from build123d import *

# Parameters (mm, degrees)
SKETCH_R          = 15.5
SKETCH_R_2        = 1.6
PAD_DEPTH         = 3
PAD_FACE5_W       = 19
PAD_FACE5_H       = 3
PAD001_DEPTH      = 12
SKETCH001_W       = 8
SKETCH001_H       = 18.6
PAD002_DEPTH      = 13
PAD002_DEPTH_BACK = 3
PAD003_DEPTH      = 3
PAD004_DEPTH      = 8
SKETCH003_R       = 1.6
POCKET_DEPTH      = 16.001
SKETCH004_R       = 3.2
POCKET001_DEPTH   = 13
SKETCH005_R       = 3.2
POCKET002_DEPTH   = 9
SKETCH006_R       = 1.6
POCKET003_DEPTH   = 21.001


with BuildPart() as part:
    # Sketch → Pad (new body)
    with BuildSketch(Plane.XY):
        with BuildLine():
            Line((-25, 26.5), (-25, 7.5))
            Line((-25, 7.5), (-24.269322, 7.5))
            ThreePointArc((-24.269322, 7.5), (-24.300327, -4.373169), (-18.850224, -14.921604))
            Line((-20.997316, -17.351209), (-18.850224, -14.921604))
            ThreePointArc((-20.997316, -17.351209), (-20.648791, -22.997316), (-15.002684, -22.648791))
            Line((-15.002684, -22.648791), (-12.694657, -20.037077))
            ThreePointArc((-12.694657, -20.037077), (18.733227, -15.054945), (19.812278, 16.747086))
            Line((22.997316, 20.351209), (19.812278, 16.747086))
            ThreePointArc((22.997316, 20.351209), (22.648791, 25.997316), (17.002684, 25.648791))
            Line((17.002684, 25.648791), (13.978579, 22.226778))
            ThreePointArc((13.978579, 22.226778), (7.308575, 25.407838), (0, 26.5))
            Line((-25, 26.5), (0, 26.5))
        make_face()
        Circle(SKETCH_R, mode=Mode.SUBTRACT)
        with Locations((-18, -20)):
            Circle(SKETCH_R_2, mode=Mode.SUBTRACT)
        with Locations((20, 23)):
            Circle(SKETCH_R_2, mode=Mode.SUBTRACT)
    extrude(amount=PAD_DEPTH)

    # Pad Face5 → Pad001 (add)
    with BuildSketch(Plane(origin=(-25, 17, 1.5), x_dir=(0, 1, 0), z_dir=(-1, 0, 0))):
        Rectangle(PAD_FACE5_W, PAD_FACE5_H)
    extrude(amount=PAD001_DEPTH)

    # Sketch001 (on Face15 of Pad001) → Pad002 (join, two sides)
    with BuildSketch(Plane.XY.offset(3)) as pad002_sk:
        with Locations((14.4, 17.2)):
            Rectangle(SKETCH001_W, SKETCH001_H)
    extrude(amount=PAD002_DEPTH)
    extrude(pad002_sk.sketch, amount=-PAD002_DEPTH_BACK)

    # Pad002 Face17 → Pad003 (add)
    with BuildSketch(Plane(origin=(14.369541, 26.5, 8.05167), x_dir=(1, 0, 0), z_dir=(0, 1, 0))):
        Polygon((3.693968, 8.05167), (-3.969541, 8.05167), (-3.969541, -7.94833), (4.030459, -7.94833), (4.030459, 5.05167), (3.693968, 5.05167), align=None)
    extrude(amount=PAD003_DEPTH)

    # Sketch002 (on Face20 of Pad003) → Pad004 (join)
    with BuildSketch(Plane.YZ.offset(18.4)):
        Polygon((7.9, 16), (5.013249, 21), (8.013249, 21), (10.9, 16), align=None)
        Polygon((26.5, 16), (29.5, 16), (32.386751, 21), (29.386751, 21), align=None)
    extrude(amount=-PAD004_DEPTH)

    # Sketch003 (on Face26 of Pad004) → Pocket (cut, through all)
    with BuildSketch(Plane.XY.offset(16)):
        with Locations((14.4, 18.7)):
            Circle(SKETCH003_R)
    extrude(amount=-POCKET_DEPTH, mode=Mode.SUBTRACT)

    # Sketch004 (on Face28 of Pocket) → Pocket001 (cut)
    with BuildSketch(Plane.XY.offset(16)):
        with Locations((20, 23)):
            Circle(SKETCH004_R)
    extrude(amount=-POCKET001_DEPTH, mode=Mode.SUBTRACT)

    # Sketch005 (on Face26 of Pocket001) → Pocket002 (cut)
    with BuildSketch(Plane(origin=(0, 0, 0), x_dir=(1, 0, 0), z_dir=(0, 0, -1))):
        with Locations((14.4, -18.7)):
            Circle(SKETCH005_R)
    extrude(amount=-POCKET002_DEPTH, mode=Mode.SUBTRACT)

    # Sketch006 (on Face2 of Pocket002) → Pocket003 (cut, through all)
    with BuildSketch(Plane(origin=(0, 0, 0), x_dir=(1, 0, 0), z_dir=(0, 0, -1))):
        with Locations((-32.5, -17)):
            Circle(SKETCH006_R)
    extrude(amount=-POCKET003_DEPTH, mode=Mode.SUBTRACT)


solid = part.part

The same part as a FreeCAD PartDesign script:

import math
import FreeCAD as App
import Part
import Sketcher
Q = App.Units.Quantity


def add_polygon(sketch, points):
    """Adds a closed chain of lines whose ends are joined by coincident constraints."""
    first, n = sketch.GeometryCount, len(points)
    for a, b in zip(points, points[1:] + points[:1]):
        sketch.addGeometry(Part.LineSegment(App.Vector(*a, 0), App.Vector(*b, 0)), False)
    for i in range(n):
        sketch.addConstraint(Sketcher.Constraint("Coincident", first + i, 2, first + (i + 1) % n, 1))

doc = App.newDocument("Part")
body = doc.addObject("PartDesign::Body", "Body")

# Sketch on XY plane
sketch1 = doc.addObject("Sketcher::SketchObject", "Sketch")
body.addObject(sketch1)
sketch1.AttachmentSupport = (doc.XY_Plane, [""])
sketch1.MapMode = "FlatFace"
sketch1.addGeometry([
    Part.LineSegment(App.Vector(-25, 26.5, 0), App.Vector(-25, 7.5, 0)),  # 0
    Part.LineSegment(App.Vector(-25, 7.5, 0), App.Vector(-24.3, 7.5, 0)),  # 1
    Part.ArcOfCircle(Part.Circle(App.Vector(0, 1.5, 0), App.Vector(0, 0, 1), 25), math.radians(166), math.radians(221)),  # 2
    Part.LineSegment(App.Vector(-18.9, -14.9, 0), App.Vector(-21, -17.4, 0)),  # 3
    Part.ArcOfCircle(Part.Circle(App.Vector(-18, -20, 0), App.Vector(0, 0, 1), 4), math.radians(139), math.radians(319)),  # 4
    Part.LineSegment(App.Vector(-15, -22.6, 0), App.Vector(-12.7, -20, 0)),  # 5
    Part.ArcOfCircle(Part.Circle(App.Vector(0, 1.5, 0), App.Vector(0, 0, 1), 25), math.radians(-121), math.radians(38)),  # 6
    Part.LineSegment(App.Vector(19.8, 16.7, 0), App.Vector(23, 20.4, 0)),  # 7
    Part.ArcOfCircle(Part.Circle(App.Vector(20, 23, 0), App.Vector(0, 0, 1), 4), math.radians(-41), math.radians(139)),  # 8
    Part.LineSegment(App.Vector(17, 25.6, 0), App.Vector(14, 22.2, 0)),  # 9
    Part.ArcOfCircle(Part.Circle(App.Vector(0, 1.5, 0), App.Vector(0, 0, 1), 25), math.radians(56), math.radians(90)),  # 10
    Part.LineSegment(App.Vector(0, 26.5, 0), App.Vector(-25, 26.5, 0)),  # 11
    Part.Circle(App.Vector(-18, -20, 0), App.Vector(0, 0, 1), 1.6),  # 12
    Part.Circle(App.Vector(0, 0, 0), App.Vector(0, 0, 1), 15.5),  # 13
    Part.Circle(App.Vector(20, 23, 0), App.Vector(0, 0, 1), 1.6),  # 14
], False)
sketch1.addConstraint([
    Sketcher.Constraint("Coincident", 0, 2, 1, 1),
    Sketcher.Constraint("Coincident", 1, 2, 2, 1),
    Sketcher.Constraint("Coincident", 2, 2, 3, 1),
    Sketcher.Constraint("Tangent", 3, 2, 4, 1),
    Sketcher.Constraint("Tangent", 4, 2, 5, 1),
    Sketcher.Constraint("Coincident", 5, 2, 6, 1),
    Sketcher.Constraint("Coincident", 6, 2, 7, 1),
    Sketcher.Constraint("Tangent", 7, 2, 8, 1),
    Sketcher.Constraint("Tangent", 8, 2, 9, 1),
    Sketcher.Constraint("Coincident", 9, 2, 10, 1),
    Sketcher.Constraint("Tangent", 10, 2, 11, 1),
    Sketcher.Constraint("Coincident", 11, 2, 0, 1),
    Sketcher.Constraint("Vertical", 0),
    Sketcher.Constraint("Horizontal", 1),
    Sketcher.Constraint("Horizontal", 11),
    Sketcher.Constraint("Coincident", 13, 3, -1, 1),
    Sketcher.Constraint("Coincident", 6, 3, 2, 3),
    Sketcher.Constraint("Coincident", 10, 3, 2, 3),
    Sketcher.Constraint("Coincident", 12, 3, 4, 3),
    Sketcher.Constraint("Coincident", 14, 3, 8, 3),
    Sketcher.Constraint("Equal", 2, 6),
    Sketcher.Constraint("Equal", 4, 8),
    Sketcher.Constraint("Equal", 12, 14),
    Sketcher.Constraint("PointOnObject", 2, 3, -2),
    Sketcher.Constraint("Parallel", 3, 5),
    Sketcher.Constraint("Parallel", 5, 7),
    Sketcher.Constraint("Parallel", 7, 9),
    Sketcher.Constraint("Diameter", 13, 31.0),
    Sketcher.Constraint("Radius", 2, 25.0),
    Sketcher.Constraint("Radius", 4, 4.0),
    Sketcher.Constraint("Diameter", 12, 3.2),
    Sketcher.Constraint("DistanceX", 11, 2, 11, 1, 25.0),
    Sketcher.Constraint("DistanceY", 0, 2, 0, 1, 19.0),
    Sketcher.Constraint("DistanceX", 4, 3, -1, 1, 18.0),
    Sketcher.Constraint("DistanceY", 4, 3, -1, 1, 20.0),
    Sketcher.Constraint("DistanceX", -1, 1, 8, 3, 20.0),
    Sketcher.Constraint("DistanceY", -1, 1, 8, 3, 23.0),
    Sketcher.Constraint("DistanceY", 6, 3, 0, 2, 6.0),
    Sketcher.Constraint("DistanceY", -1, 1, 2, 3, 1.499999),
    Sketcher.Constraint("Distance", 7, 4.809799),
])
pad1 = doc.addObject("PartDesign::Pad", "Pad")
body.addObject(pad1)
pad1.Profile = sketch1
pad1.Length = 3

# Sketch on YZ plane
sketch2 = doc.addObject("Sketcher::SketchObject", "Sketch001")
body.addObject(sketch2)
sketch2.AttachmentSupport = (doc.YZ_Plane, [""])
sketch2.MapMode = "FlatFace"
sketch2.AttachmentOffset = App.Placement(App.Vector(0, 0, -25), App.Rotation())
add_polygon(sketch2, [(7.5, 0), (7.5, 3), (26.5, 3), (26.5, 0)])  # lines 0-3
sketch2.addConstraint([
    Sketcher.Constraint("Vertical", 0),
    Sketcher.Constraint("Horizontal", 1),
    Sketcher.Constraint("Vertical", 2),
    Sketcher.Constraint("Horizontal", 3),
    Sketcher.Constraint("PointOnObject", 2, 2, -1),
    Sketcher.Constraint("DistanceX", 1, 1, 1, 2, 19.0),
    Sketcher.Constraint("DistanceY", 0, 1, 0, 2, 3.0),
    Sketcher.Constraint("DistanceX", -1, 1, 0, 2, 7.5),
])
pad2 = doc.addObject("PartDesign::Pad", "Pad001")
body.addObject(pad2)
pad2.Profile = sketch2
pad2.Length = 12
pad2.Reversed = True

# Sketch on XY plane
sketch3 = doc.addObject("Sketcher::SketchObject", "Sketch002")
body.addObject(sketch3)
sketch3.AttachmentSupport = (doc.XY_Plane, [""])
sketch3.MapMode = "FlatFace"
sketch3.AttachmentOffset = App.Placement(App.Vector(0, 0, 3), App.Rotation())
add_polygon(sketch3, [(10, 26), (10, 8), (18, 8), (18, 26)])  # lines 0-3
sketch3.addConstraint([
    Sketcher.Constraint("Vertical", 0),
    Sketcher.Constraint("Horizontal", 1),
    Sketcher.Constraint("Vertical", 2),
    Sketcher.Constraint("Horizontal", 3),
    Sketcher.Constraint("DistanceX", 1, 1, 1, 2, 8.0),
    Sketcher.Constraint("DistanceY", 0, 2, 0, 1, 18.6),
    Sketcher.Constraint("DistanceX", -1, 1, 0, 2, 10.4),
    Sketcher.Constraint("DistanceY", -1, 1, 0, 2, 7.9),
])
pad3 = doc.addObject("PartDesign::Pad", "Pad002")
body.addObject(pad3)
pad3.Profile = sketch3
pad3.Type = "TwoLengths"
pad3.Length = 13
pad3.Length2 = 3

# Sketch on XZ plane
sketch4 = doc.addObject("Sketcher::SketchObject", "Sketch003")
body.addObject(sketch4)
sketch4.AttachmentSupport = (doc.XZ_Plane, [""])
sketch4.MapMode = "FlatFace"
sketch4.AttachmentOffset = App.Placement(App.Vector(0, 0, -26.5), App.Rotation())
add_polygon(sketch4, [(18.06, 0), (10.4, 0), (10.4, 16), (18.4, 16), (18.4, 3), (18.06, 3)])  # lines 0-5
sketch4.addConstraint([
    Sketcher.Constraint("Horizontal", 0),
    Sketcher.Constraint("Vertical", 1),
    Sketcher.Constraint("Horizontal", 2),
    Sketcher.Constraint("Vertical", 3),
    Sketcher.Constraint("Horizontal", 4),
    Sketcher.Constraint("Vertical", 5),
    Sketcher.Constraint("PointOnObject", 0, 2, -1),
    Sketcher.Constraint("DistanceX", 2, 1, 2, 2, 8.0),
    Sketcher.Constraint("DistanceY", 1, 1, 1, 2, 16.0),
    Sketcher.Constraint("DistanceY", 3, 2, 3, 1, 13.0),
    Sketcher.Constraint("DistanceX", -1, 1, 0, 2, 10.4),
    Sketcher.Constraint("DistanceX", 0, 2, 0, 1, 7.663509),
])
pad4 = doc.addObject("PartDesign::Pad", "Pad003")
body.addObject(pad4)
pad4.Profile = sketch4
pad4.Length = 3
pad4.Reversed = True

# Sketch on YZ plane
sketch5 = doc.addObject("Sketcher::SketchObject", "Sketch004")
body.addObject(sketch5)
sketch5.AttachmentSupport = (doc.YZ_Plane, [""])
sketch5.MapMode = "FlatFace"
sketch5.AttachmentOffset = App.Placement(App.Vector(0, 0, 18.4), App.Rotation())
add_polygon(sketch5, [(5, 21), (7.9, 16), (10.9, 16), (8, 21)])  # lines 0-3
add_polygon(sketch5, [(26.5, 16), (29.5, 16), (32.4, 21), (29.4, 21)])  # lines 4-7
sketch5.addConstraint([
    Sketcher.Constraint("Horizontal", 1),
    Sketcher.Constraint("Horizontal", 3),
    Sketcher.Constraint("Horizontal", 4),
    Sketcher.Constraint("Horizontal", 6),
    Sketcher.Constraint("Parallel", 0, 2),
    Sketcher.Constraint("Parallel", 5, 7),
    Sketcher.Constraint("Horizontal", 1, 2, 4, 2),
    Sketcher.Constraint("Horizontal", 3, 2, 5, 2),
    Sketcher.Constraint("Equal", 3, 4),
    Sketcher.Constraint("Equal", 2, 5),
    Sketcher.Constraint("DistanceX", 1, 1, 1, 2, 3.0),
    Sketcher.Constraint("Angle", 0, Q("-60.000003 deg")),
    Sketcher.Constraint("DistanceY", -1, 1, 0, 2, 16.0),
    Sketcher.Constraint("DistanceY", -1, 1, 2, 2, 21.0),
    Sketcher.Constraint("DistanceX", -1, 1, 0, 2, 7.9),
    Sketcher.Constraint("DistanceX", -1, 1, 4, 2, 29.5),
])
pad5 = doc.addObject("PartDesign::Pad", "Pad004")
body.addObject(pad5)
pad5.Profile = sketch5
pad5.Length = 8
pad5.Reversed = True

# Sketch on XY plane
sketch6 = doc.addObject("Sketcher::SketchObject", "Sketch005")
body.addObject(sketch6)
sketch6.AttachmentSupport = (doc.XY_Plane, [""])
sketch6.MapMode = "FlatFace"
sketch6.AttachmentOffset = App.Placement(App.Vector(0, 0, 16), App.Rotation())
sketch6.addGeometry(Part.Circle(App.Vector(14.4, 18.7, 0), App.Vector(0, 0, 1), 1.6), False)
sketch6.addConstraint([
    Sketcher.Constraint("Diameter", 0, 3.2),
    Sketcher.Constraint("DistanceX", -1, 1, 0, 3, 14.4),
    Sketcher.Constraint("DistanceY", -1, 1, 0, 3, 18.7),
])
pocket1 = doc.addObject("PartDesign::Pocket", "Pocket")
body.addObject(pocket1)
pocket1.Profile = sketch6
pocket1.Type = "ThroughAll"

# Sketch on XY plane
sketch7 = doc.addObject("Sketcher::SketchObject", "Sketch006")
body.addObject(sketch7)
sketch7.AttachmentSupport = (doc.XY_Plane, [""])
sketch7.MapMode = "FlatFace"
sketch7.AttachmentOffset = App.Placement(App.Vector(0, 0, 16), App.Rotation())
sketch7.addGeometry(Part.Circle(App.Vector(20, 23, 0), App.Vector(0, 0, 1), 3.2), False)
sketch7.addConstraint([
    Sketcher.Constraint("Diameter", 0, 6.4),
    Sketcher.Constraint("DistanceX", -1, 1, 0, 3, 20.0),
    Sketcher.Constraint("DistanceY", -1, 1, 0, 3, 23.0),
])
pocket2 = doc.addObject("PartDesign::Pocket", "Pocket001")
body.addObject(pocket2)
pocket2.Profile = sketch7
pocket2.Length = 13

# Sketch on XY plane
sketch8 = doc.addObject("Sketcher::SketchObject", "Sketch007")
body.addObject(sketch8)
sketch8.AttachmentSupport = (doc.XY_Plane, [""])
sketch8.MapMode = "FlatFace"
sketch8.addGeometry(Part.Circle(App.Vector(14.4, 18.7, 0), App.Vector(0, 0, 1), 3.2), False)
sketch8.addConstraint([
    Sketcher.Constraint("Diameter", 0, 6.4),
    Sketcher.Constraint("DistanceX", -1, 1, 0, 3, 14.4),
    Sketcher.Constraint("DistanceY", -1, 1, 0, 3, 18.7),
])
pocket3 = doc.addObject("PartDesign::Pocket", "Pocket002")
body.addObject(pocket3)
pocket3.Profile = sketch8
pocket3.Length = 9
pocket3.Reversed = True

# Sketch on XY plane
sketch9 = doc.addObject("Sketcher::SketchObject", "Sketch008")
body.addObject(sketch9)
sketch9.AttachmentSupport = (doc.XY_Plane, [""])
sketch9.MapMode = "FlatFace"
sketch9.addGeometry(Part.Circle(App.Vector(-32.5, 17, 0), App.Vector(0, 0, 1), 1.6), False)
sketch9.addConstraint([
    Sketcher.Constraint("Diameter", 0, 3.2),
    Sketcher.Constraint("DistanceY", -1, 1, 0, 3, 17.0),
    Sketcher.Constraint("DistanceX", 0, 3, -1, 1, 32.5),
])
pocket4 = doc.addObject("PartDesign::Pocket", "Pocket003")
body.addObject(pocket4)
pocket4.Profile = sketch9
pocket4.Type = "ThroughAll"
pocket4.Reversed = True

doc.recompute()
